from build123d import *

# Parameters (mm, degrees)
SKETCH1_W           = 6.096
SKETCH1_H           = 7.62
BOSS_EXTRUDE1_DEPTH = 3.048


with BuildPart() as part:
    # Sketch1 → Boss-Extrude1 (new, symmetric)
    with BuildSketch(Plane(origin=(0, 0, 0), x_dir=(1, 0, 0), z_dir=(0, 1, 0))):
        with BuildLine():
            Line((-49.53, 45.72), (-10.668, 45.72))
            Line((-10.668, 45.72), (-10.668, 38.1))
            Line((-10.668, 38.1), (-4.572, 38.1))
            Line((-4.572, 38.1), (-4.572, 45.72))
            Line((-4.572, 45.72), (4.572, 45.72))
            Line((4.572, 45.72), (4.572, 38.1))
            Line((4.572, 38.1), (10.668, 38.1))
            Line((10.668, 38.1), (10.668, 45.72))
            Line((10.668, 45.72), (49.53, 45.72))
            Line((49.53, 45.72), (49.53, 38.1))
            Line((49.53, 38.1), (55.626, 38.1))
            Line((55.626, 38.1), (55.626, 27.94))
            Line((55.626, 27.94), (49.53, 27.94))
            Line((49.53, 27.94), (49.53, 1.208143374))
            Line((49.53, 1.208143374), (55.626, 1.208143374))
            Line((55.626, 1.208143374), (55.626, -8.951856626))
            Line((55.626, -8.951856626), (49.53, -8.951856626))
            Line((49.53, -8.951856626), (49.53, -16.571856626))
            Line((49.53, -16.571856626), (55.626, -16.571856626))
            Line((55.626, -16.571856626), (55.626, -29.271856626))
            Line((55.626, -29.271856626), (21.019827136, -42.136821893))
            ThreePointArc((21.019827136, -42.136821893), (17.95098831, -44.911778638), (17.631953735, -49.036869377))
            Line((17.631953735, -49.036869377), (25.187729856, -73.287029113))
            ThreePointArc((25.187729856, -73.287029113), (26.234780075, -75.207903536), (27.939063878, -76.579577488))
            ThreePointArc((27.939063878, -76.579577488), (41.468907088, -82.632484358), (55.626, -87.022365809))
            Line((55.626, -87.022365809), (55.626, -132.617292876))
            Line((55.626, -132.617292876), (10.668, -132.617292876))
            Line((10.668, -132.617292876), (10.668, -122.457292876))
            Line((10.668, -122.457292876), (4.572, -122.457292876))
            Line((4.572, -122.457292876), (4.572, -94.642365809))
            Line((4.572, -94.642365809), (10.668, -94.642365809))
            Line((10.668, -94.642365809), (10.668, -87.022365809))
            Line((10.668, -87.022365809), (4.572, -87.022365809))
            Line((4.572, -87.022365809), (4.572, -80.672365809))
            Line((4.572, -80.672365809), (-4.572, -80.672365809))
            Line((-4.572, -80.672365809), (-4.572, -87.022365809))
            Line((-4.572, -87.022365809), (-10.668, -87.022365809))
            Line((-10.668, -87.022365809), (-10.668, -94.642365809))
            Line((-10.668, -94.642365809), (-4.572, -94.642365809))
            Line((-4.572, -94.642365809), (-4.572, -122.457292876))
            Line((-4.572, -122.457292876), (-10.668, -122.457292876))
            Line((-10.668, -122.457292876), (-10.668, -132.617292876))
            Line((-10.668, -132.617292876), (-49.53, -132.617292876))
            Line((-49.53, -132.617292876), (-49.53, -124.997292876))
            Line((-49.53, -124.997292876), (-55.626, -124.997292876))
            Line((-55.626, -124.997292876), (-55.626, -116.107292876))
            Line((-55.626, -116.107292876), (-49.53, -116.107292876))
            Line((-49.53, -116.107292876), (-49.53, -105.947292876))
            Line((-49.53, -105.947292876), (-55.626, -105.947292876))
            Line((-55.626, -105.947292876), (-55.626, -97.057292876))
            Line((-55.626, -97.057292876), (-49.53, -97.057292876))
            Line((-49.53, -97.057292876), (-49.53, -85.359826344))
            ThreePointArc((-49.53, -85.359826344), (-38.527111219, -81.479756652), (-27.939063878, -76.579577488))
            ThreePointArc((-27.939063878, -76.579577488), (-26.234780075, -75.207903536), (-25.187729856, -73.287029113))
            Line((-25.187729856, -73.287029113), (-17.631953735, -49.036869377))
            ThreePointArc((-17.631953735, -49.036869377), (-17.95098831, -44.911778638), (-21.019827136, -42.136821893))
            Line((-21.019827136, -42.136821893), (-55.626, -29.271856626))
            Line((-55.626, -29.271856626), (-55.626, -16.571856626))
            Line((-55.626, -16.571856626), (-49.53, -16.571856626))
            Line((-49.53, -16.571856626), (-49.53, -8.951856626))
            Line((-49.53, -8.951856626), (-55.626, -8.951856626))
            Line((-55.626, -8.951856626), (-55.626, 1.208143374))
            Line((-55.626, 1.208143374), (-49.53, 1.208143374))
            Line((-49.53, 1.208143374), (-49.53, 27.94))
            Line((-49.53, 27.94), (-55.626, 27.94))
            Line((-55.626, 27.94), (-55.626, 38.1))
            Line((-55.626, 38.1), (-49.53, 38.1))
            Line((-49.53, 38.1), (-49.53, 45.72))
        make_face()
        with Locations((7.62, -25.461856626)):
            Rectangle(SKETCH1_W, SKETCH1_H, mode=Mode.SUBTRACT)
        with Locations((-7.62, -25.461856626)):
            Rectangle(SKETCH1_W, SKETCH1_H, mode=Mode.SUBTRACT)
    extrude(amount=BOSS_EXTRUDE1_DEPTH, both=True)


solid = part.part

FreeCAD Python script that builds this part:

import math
import FreeCAD as App
import Part
import Sketcher
Q = App.Units.Quantity

doc = App.newDocument("Part")
body = doc.addObject("PartDesign::Body", "Body")

# Sketch on XZ plane
sketch1 = body.newObject("Sketcher::SketchObject", "Sketch")
sketch1.AttachmentSupport = (doc.getObject("XZ_Plane"), [""])
sketch1.MapMode = "FlatFace"
sketch1.addGeometry([
    Part.LineSegment(App.Vector(-10.7, -45.7, 0), App.Vector(-49.5, -45.7, 0)),  # 0
    Part.LineSegment(App.Vector(-49.5, -45.7, 0), App.Vector(-49.5, -38.1, 0)),  # 1
    Part.LineSegment(App.Vector(-49.5, -38.1, 0), App.Vector(-55.6, -38.1, 0)),  # 2
    Part.LineSegment(App.Vector(-55.6, -38.1, 0), App.Vector(-55.6, -27.9, 0)),  # 3
    Part.LineSegment(App.Vector(-55.6, -27.9, 0), App.Vector(-49.5, -27.9, 0)),  # 4
    Part.LineSegment(App.Vector(-49.5, -27.9, 0), App.Vector(-49.5, -1.2, 0)),  # 5
    Part.LineSegment(App.Vector(-49.5, -1.2, 0), App.Vector(-55.6, -1.2, 0)),  # 6
    Part.LineSegment(App.Vector(-55.6, -1.2, 0), App.Vector(-55.6, 9, 0)),  # 7
    Part.LineSegment(App.Vector(-55.6, 9, 0), App.Vector(-49.5, 9, 0)),  # 8
    Part.LineSegment(App.Vector(-49.5, 9, 0), App.Vector(-49.5, 16.6, 0)),  # 9
    Part.LineSegment(App.Vector(-49.5, 16.6, 0), App.Vector(-55.6, 16.6, 0)),  # 10
    Part.LineSegment(App.Vector(-55.6, 16.6, 0), App.Vector(-55.6, 29.3, 0)),  # 11
    Part.LineSegment(App.Vector(-55.6, 29.3, 0), App.Vector(-21, 42.1, 0)),  # 12
    Part.ArcOfCircle(Part.Circle(App.Vector(-23, 47.4, 0), App.Vector(0, 0, 1), 5.6), math.radians(-70), math.radians(17)),  # 13
    Part.LineSegment(App.Vector(-17.6, 49, 0), App.Vector(-25.2, 73.3, 0)),  # 14
    Part.ArcOfCircle(Part.Circle(App.Vector(-30.5, 71.6, 0), App.Vector(0, 0, 1), 5.6), math.radians(17), math.radians(62)),  # 15
    Part.ArcOfCircle(Part.Circle(App.Vector(-85.1, -33, 0), App.Vector(0, 0, 1), 123.6), math.radians(62.46), math.radians(73.28)),  # 16
    Part.LineSegment(App.Vector(-49.5, 85.4, 0), App.Vector(-49.5, 97.1, 0)),  # 17
    Part.LineSegment(App.Vector(-49.5, 97.1, 0), App.Vector(-55.6, 97.1, 0)),  # 18
    Part.LineSegment(App.Vector(-55.6, 97.1, 0), App.Vector(-55.6, 105.9, 0)),  # 19
    Part.LineSegment(App.Vector(-55.6, 105.9, 0), App.Vector(-49.5, 105.9, 0)),  # 20
    Part.LineSegment(App.Vector(-49.5, 105.9, 0), App.Vector(-49.5, 116.1, 0)),  # 21
    Part.LineSegment(App.Vector(-49.5, 116.1, 0), App.Vector(-55.6, 116.1, 0)),  # 22
    Part.LineSegment(App.Vector(-55.6, 116.1, 0), App.Vector(-55.6, 125, 0)),  # 23
    Part.LineSegment(App.Vector(-55.6, 125, 0), App.Vector(-49.5, 125, 0)),  # 24
    Part.LineSegment(App.Vector(-49.5, 125, 0), App.Vector(-49.5, 132.6, 0)),  # 25
    Part.LineSegment(App.Vector(-49.5, 132.6, 0), App.Vector(-10.7, 132.6, 0)),  # 26
    Part.LineSegment(App.Vector(-10.7, 132.6, 0), App.Vector(-10.7, 122.5, 0)),  # 27
    Part.LineSegment(App.Vector(-10.7, 122.5, 0), App.Vector(-4.6, 122.5, 0)),  # 28
    Part.LineSegment(App.Vector(-4.6, 122.5, 0), App.Vector(-4.6, 94.6, 0)),  # 29
    Part.LineSegment(App.Vector(-4.6, 94.6, 0), App.Vector(-10.7, 94.6, 0)),  # 30
    Part.LineSegment(App.Vector(-10.7, 94.6, 0), App.Vector(-10.7, 87, 0)),  # 31
    Part.LineSegment(App.Vector(-10.7, 87, 0), App.Vector(-4.6, 87, 0)),  # 32
    Part.LineSegment(App.Vector(-4.6, 87, 0), App.Vector(-4.6, 80.7, 0)),  # 33
    Part.LineSegment(App.Vector(-4.6, 80.7, 0), App.Vector(4.6, 80.7, 0)),  # 34
    Part.LineSegment(App.Vector(4.6, 80.7, 0), App.Vector(4.6, 87, 0)),  # 35
    Part.LineSegment(App.Vector(4.6, 87, 0), App.Vector(10.7, 87, 0)),  # 36
    Part.LineSegment(App.Vector(10.7, 87, 0), App.Vector(10.7, 94.6, 0)),  # 37
    Part.LineSegment(App.Vector(10.7, 94.6, 0), App.Vector(4.6, 94.6, 0)),  # 38
    Part.LineSegment(App.Vector(4.6, 94.6, 0), App.Vector(4.6, 122.5, 0)),  # 39
    Part.LineSegment(App.Vector(4.6, 122.5, 0), App.Vector(10.7, 122.5, 0)),  # 40
    Part.LineSegment(App.Vector(10.7, 122.5, 0), App.Vector(10.7, 132.6, 0)),  # 41
    Part.LineSegment(App.Vector(10.7, 132.6, 0), App.Vector(55.6, 132.6, 0)),  # 42
    Part.LineSegment(App.Vector(55.6, 132.6, 0), App.Vector(55.6, 87, 0)),  # 43
    Part.ArcOfCircle(Part.Circle(App.Vector(85.1, -33, 0), App.Vector(0, 0, 1), 123.6), math.radians(103.79), math.radians(117.54)),  # 44
    Part.ArcOfCircle(Part.Circle(App.Vector(30.5, 71.6, 0), App.Vector(0, 0, 1), 5.6), math.radians(118), math.radians(163)),  # 45
    Part.LineSegment(App.Vector(25.2, 73.3, 0), App.Vector(17.6, 49, 0)),  # 46
    Part.ArcOfCircle(Part.Circle(App.Vector(23, 47.4, 0), App.Vector(0, 0, 1), 5.6), math.radians(163), math.radians(250)),  # 47
    Part.LineSegment(App.Vector(21, 42.1, 0), App.Vector(55.6, 29.3, 0)),  # 48
    Part.LineSegment(App.Vector(55.6, 29.3, 0), App.Vector(55.6, 16.6, 0)),  # 49
    Part.LineSegment(App.Vector(55.6, 16.6, 0), App.Vector(49.5, 16.6, 0)),  # 50
    Part.LineSegment(App.Vector(49.5, 16.6, 0), App.Vector(49.5, 9, 0)),  # 51
    Part.LineSegment(App.Vector(49.5, 9, 0), App.Vector(55.6, 9, 0)),  # 52
    Part.LineSegment(App.Vector(55.6, 9, 0), App.Vector(55.6, -1.2, 0)),  # 53
    Part.LineSegment(App.Vector(55.6, -1.2, 0), App.Vector(49.5, -1.2, 0)),  # 54
    Part.LineSegment(App.Vector(49.5, -1.2, 0), App.Vector(49.5, -27.9, 0)),  # 55
    Part.LineSegment(App.Vector(49.5, -27.9, 0), App.Vector(55.6, -27.9, 0)),  # 56
    Part.LineSegment(App.Vector(55.6, -27.9, 0), App.Vector(55.6, -38.1, 0)),  # 57
    Part.LineSegment(App.Vector(55.6, -38.1, 0), App.Vector(49.5, -38.1, 0)),  # 58
    Part.LineSegment(App.Vector(49.5, -38.1, 0), App.Vector(49.5, -45.7, 0)),  # 59
    Part.LineSegment(App.Vector(49.5, -45.7, 0), App.Vector(10.7, -45.7, 0)),  # 60
    Part.LineSegment(App.Vector(10.7, -45.7, 0), App.Vector(10.7, -38.1, 0)),  # 61
    Part.LineSegment(App.Vector(10.7, -38.1, 0), App.Vector(4.6, -38.1, 0)),  # 62
    Part.LineSegment(App.Vector(4.6, -38.1, 0), App.Vector(4.6, -45.7, 0)),  # 63
    Part.LineSegment(App.Vector(4.6, -45.7, 0), App.Vector(-4.6, -45.7, 0)),  # 64
    Part.LineSegment(App.Vector(-4.6, -45.7, 0), App.Vector(-4.6, -38.1, 0)),  # 65
    Part.LineSegment(App.Vector(-4.6, -38.1, 0), App.Vector(-10.7, -38.1, 0)),  # 66
    Part.LineSegment(App.Vector(-10.7, -38.1, 0), App.Vector(-10.7, -45.7, 0)),  # 67
    Part.LineSegment(App.Vector(4.6, 29.3, 0), App.Vector(4.6, 21.7, 0)),  # 68
    Part.LineSegment(App.Vector(4.6, 21.7, 0), App.Vector(10.7, 21.7, 0)),  # 69
    Part.LineSegment(App.Vector(10.7, 21.7, 0), App.Vector(10.7, 29.3, 0)),  # 70
    Part.LineSegment(App.Vector(10.7, 29.3, 0), App.Vector(4.6, 29.3, 0)),  # 71
    Part.LineSegment(App.Vector(-10.7, 29.3, 0), App.Vector(-10.7, 21.7, 0)),  # 72
    Part.LineSegment(App.Vector(-10.7, 21.7, 0), App.Vector(-4.6, 21.7, 0)),  # 73
    Part.LineSegment(App.Vector(-4.6, 21.7, 0), App.Vector(-4.6, 29.3, 0)),  # 74
    Part.LineSegment(App.Vector(-4.6, 29.3, 0), App.Vector(-10.7, 29.3, 0)),  # 75
], False)
sketch1.addConstraint([
    Sketcher.Constraint("Coincident", 0, 2, 1, 1),
    Sketcher.Constraint("Coincident", 1, 2, 2, 1),
    Sketcher.Constraint("Coincident", 2, 2, 3, 1),
    Sketcher.Constraint("Coincident", 3, 2, 4, 1),
    Sketcher.Constraint("Coincident", 4, 2, 5, 1),
    Sketcher.Constraint("Coincident", 5, 2, 6, 1),
    Sketcher.Constraint("Coincident", 6, 2, 7, 1),
    Sketcher.Constraint("Coincident", 7, 2, 8, 1),
    Sketcher.Constraint("Coincident", 8, 2, 9, 1),
    Sketcher.Constraint("Coincident", 9, 2, 10, 1),
    Sketcher.Constraint("Coincident", 10, 2, 11, 1),
    Sketcher.Constraint("Coincident", 11, 2, 12, 1),
    Sketcher.Constraint("Tangent", 12, 2, 13, 1),
    Sketcher.Constraint("Tangent", 13, 2, 14, 1),
    Sketcher.Constraint("Tangent", 14, 2, 15, 1),
    Sketcher.Constraint("Tangent", 15, 2, 16, 1),
    Sketcher.Constraint("Coincident", 16, 2, 17, 1),
    Sketcher.Constraint("Coincident", 17, 2, 18, 1),
    Sketcher.Constraint("Coincident", 18, 2, 19, 1),
    Sketcher.Constraint("Coincident", 19, 2, 20, 1),
    Sketcher.Constraint("Coincident", 20, 2, 21, 1),
    Sketcher.Constraint("Coincident", 21, 2, 22, 1),
    Sketcher.Constraint("Coincident", 22, 2, 23, 1),
    Sketcher.Constraint("Coincident", 23, 2, 24, 1),
    Sketcher.Constraint("Coincident", 24, 2, 25, 1),
    Sketcher.Constraint("Coincident", 25, 2, 26, 1),
    Sketcher.Constraint("Coincident", 26, 2, 27, 1),
    Sketcher.Constraint("Coincident", 27, 2, 28, 1),
    Sketcher.Constraint("Coincident", 28, 2, 29, 1),
    Sketcher.Constraint("Coincident", 29, 2, 30, 1),
    Sketcher.Constraint("Coincident", 30, 2, 31, 1),
    Sketcher.Constraint("Coincident", 31, 2, 32, 1),
    Sketcher.Constraint("Coincident", 32, 2, 33, 1),
    Sketcher.Constraint("Coincident", 33, 2, 34, 1),
    Sketcher.Constraint("Coincident", 34, 2, 35, 1),
    Sketcher.Constraint("Coincident", 35, 2, 36, 1),
    Sketcher.Constraint("Coincident", 36, 2, 37, 1),
    Sketcher.Constraint("Coincident", 37, 2, 38, 1),
    Sketcher.Constraint("Coincident", 38, 2, 39, 1),
    Sketcher.Constraint("Coincident", 39, 2, 40, 1),
    Sketcher.Constraint("Coincident", 40, 2, 41, 1),
    Sketcher.Constraint("Coincident", 41, 2, 42, 1),
    Sketcher.Constraint("Coincident", 42, 2, 43, 1),
    Sketcher.Constraint("Coincident", 43, 2, 44, 1),
    Sketcher.Constraint("Tangent", 44, 2, 45, 1),
    Sketcher.Constraint("Tangent", 45, 2, 46, 1),
    Sketcher.Constraint("Tangent", 46, 2, 47, 1),
    Sketcher.Constraint("Tangent", 47, 2, 48, 1),
    Sketcher.Constraint("Coincident", 48, 2, 49, 1),
    Sketcher.Constraint("Coincident", 49, 2, 50, 1),
    Sketcher.Constraint("Coincident", 50, 2, 51, 1),
    Sketcher.Constraint("Coincident", 51, 2, 52, 1),
    Sketcher.Constraint("Coincident", 52, 2, 53, 1),
    Sketcher.Constraint("Coincident", 53, 2, 54, 1),
    Sketcher.Constraint("Coincident", 54, 2, 55, 1),
    Sketcher.Constraint("Coincident", 55, 2, 56, 1),
    Sketcher.Constraint("Coincident", 56, 2, 57, 1),
    Sketcher.Constraint("Coincident", 57, 2, 58, 1),
    Sketcher.Constraint("Coincident", 58, 2, 59, 1),
    Sketcher.Constraint("Coincident", 59, 2, 60, 1),
    Sketcher.Constraint("Coincident", 60, 2, 61, 1),
    Sketcher.Constraint("Coincident", 61, 2, 62, 1),
    Sketcher.Constraint("Coincident", 62, 2, 63, 1),
    Sketcher.Constraint("Coincident", 63, 2, 64, 1),
    Sketcher.Constraint("Coincident", 64, 2, 65, 1),
    Sketcher.Constraint("Coincident", 65, 2, 66, 1),
    Sketcher.Constraint("Coincident", 66, 2, 67, 1),
    Sketcher.Constraint("Coincident", 67, 2, 0, 1),
    Sketcher.Constraint("Coincident", 68, 2, 69, 1),
    Sketcher.Constraint("Coincident", 69, 2, 70, 1),
    Sketcher.Constraint("Coincident", 70, 2, 71, 1),
    Sketcher.Constraint("Coincident", 71, 2, 68, 1),
    Sketcher.Constraint("Coincident", 72, 2, 73, 1),
    Sketcher.Constraint("Coincident", 73, 2, 74, 1),
    Sketcher.Constraint("Coincident", 74, 2, 75, 1),
    Sketcher.Constraint("Coincident", 75, 2, 72, 1),
    Sketcher.Constraint("Horizontal", 0),
    Sketcher.Constraint("Vertical", 1),
    Sketcher.Constraint("Horizontal", 2),
    Sketcher.Constraint("Vertical", 3),
    Sketcher.Constraint("Horizontal", 4),
    Sketcher.Constraint("Vertical", 5),
    Sketcher.Constraint("Horizontal", 6),
    Sketcher.Constraint("Vertical", 7),
    Sketcher.Constraint("Horizontal", 8),
    Sketcher.Constraint("Vertical", 9),
    Sketcher.Constraint("Horizontal", 10),
    Sketcher.Constraint("Vertical", 11),
    Sketcher.Constraint("Vertical", 17),
    Sketcher.Constraint("Horizontal", 18),
    Sketcher.Constraint("Vertical", 19),
    Sketcher.Constraint("Horizontal", 20),
    Sketcher.Constraint("Vertical", 21),
    Sketcher.Constraint("Horizontal", 22),
    Sketcher.Constraint("Vertical", 23),
    Sketcher.Constraint("Horizontal", 24),
    Sketcher.Constraint("Vertical", 25),
    Sketcher.Constraint("Horizontal", 26),
    Sketcher.Constraint("Vertical", 27),
    Sketcher.Constraint("Horizontal", 28),
    Sketcher.Constraint("Vertical", 29),
    Sketcher.Constraint("Horizontal", 30),
    Sketcher.Constraint("Vertical", 31),
    Sketcher.Constraint("Horizontal", 32),
    Sketcher.Constraint("Vertical", 33),
    Sketcher.Constraint("Horizontal", 34),
    Sketcher.Constraint("Vertical", 35),
    Sketcher.Constraint("Horizontal", 36),
    Sketcher.Constraint("Vertical", 37),
    Sketcher.Constraint("Horizontal", 38),
    Sketcher.Constraint("Vertical", 39),
    Sketcher.Constraint("Horizontal", 40),
    Sketcher.Constraint("Vertical", 41),
    Sketcher.Constraint("Horizontal", 42),
    Sketcher.Constraint("Vertical", 43),
    Sketcher.Constraint("Vertical", 49),
    Sketcher.Constraint("Horizontal", 50),
    Sketcher.Constraint("Vertical", 51),
    Sketcher.Constraint("Horizontal", 52),
    Sketcher.Constraint("Vertical", 53),
    Sketcher.Constraint("Horizontal", 54),
    Sketcher.Constraint("Vertical", 55),
    Sketcher.Constraint("Horizontal", 56),
    Sketcher.Constraint("Vertical", 57),
    Sketcher.Constraint("Horizontal", 58),
    Sketcher.Constraint("Vertical", 59),
    Sketcher.Constraint("Horizontal", 60),
    Sketcher.Constraint("Vertical", 61),
    Sketcher.Constraint("Horizontal", 62),
    Sketcher.Constraint("Vertical", 63),
    Sketcher.Constraint("Horizontal", 64),
    Sketcher.Constraint("Vertical", 65),
    Sketcher.Constraint("Horizontal", 66),
    Sketcher.Constraint("Vertical", 67),
    Sketcher.Constraint("Vertical", 68),
    Sketcher.Constraint("Horizontal", 69),
    Sketcher.Constraint("Vertical", 70),
    Sketcher.Constraint("Horizontal", 71),
    Sketcher.Constraint("Vertical", 72),
    Sketcher.Constraint("Horizontal", 73),
    Sketcher.Constraint("Vertical", 74),
    Sketcher.Constraint("Horizontal", 75),
    Sketcher.Constraint("Equal", 13, 15),
    Sketcher.Constraint("Equal", 16, 44),
    Sketcher.Constraint("Equal", 15, 45),
    Sketcher.Constraint("Equal", 45, 47),
    Sketcher.Constraint("Symmetric", 16, 3, 44, 3, -2),
    Sketcher.Constraint("Symmetric", 13, 3, 47, 3, -2),
    Sketcher.Constraint("Symmetric", 32, 2, 35, 2, -2),
    Sketcher.Constraint("Symmetric", 30, 2, 37, 2, -2),
    Sketcher.Constraint("Symmetric", 28, 2, 39, 2, -2),
    Sketcher.Constraint("Symmetric", 26, 2, 41, 2, -2),
    Sketcher.Constraint("Symmetric", 11, 2, 48, 2, -2),
    Sketcher.Constraint("Symmetric", 9, 2, 50, 2, -2),
    Sketcher.Constraint("Symmetric", 7, 2, 52, 2, -2),
    Sketcher.Constraint("Symmetric", 5, 2, 54, 2, -2),
    Sketcher.Constraint("Symmetric", 3, 2, 56, 2, -2),
    Sketcher.Constraint("Symmetric", 1, 2, 58, 2, -2),
    Sketcher.Constraint("Symmetric", 62, 2, 65, 2, -2),
    Sketcher.Constraint("Symmetric", 60, 2, 67, 2, -2),
    Sketcher.Constraint("Symmetric", 69, 2, 72, 2, -2),
    Sketcher.Constraint("Symmetric", 71, 2, 74, 2, -2),
    Sketcher.Constraint("Horizontal", 15, 3, 45, 3),
    Sketcher.Constraint("Horizontal", 36, 2, 43, 2),
    Sketcher.Constraint("Horizontal", 58, 2, 61, 2),
    Sketcher.Constraint("Horizontal", 60, 2, 63, 2),
    Sketcher.Constraint("Horizontal", 48, 2, 70, 2),
    Sketcher.Constraint("Vertical", 1, 2, 4, 2),
    Sketcher.Constraint("Vertical", 3, 2, 6, 2),
    Sketcher.Constraint("Vertical", 5, 2, 8, 2),
    Sketcher.Constraint("Vertical", 7, 2, 10, 2),
    Sketcher.Constraint("Vertical", 9, 2, 16, 2),
    Sketcher.Constraint("Vertical", 11, 2, 18, 2),
    Sketcher.Constraint("Vertical", 17, 2, 20, 2),
    Sketcher.Constraint("Vertical", 19, 2, 22, 2),
    Sketcher.Constraint("Vertical", 21, 2, 24, 2),
    Sketcher.Constraint("Vertical", 27, 2, 30, 2),
    Sketcher.Constraint("Vertical", 29, 2, 32, 2),
    Sketcher.Constraint("Vertical", 43, 2, 48, 2),
    Sketcher.Constraint("Vertical", 41, 2, 60, 2),
    Sketcher.Constraint("Vertical", 39, 2, 62, 2),
    Sketcher.Constraint("Vertical", 63, 2, 68, 2),
    Sketcher.Constraint("Vertical", 61, 2, 69, 2),
    Sketcher.Constraint("Equal", 24, 28),
    Sketcher.Constraint("Equal", 3, 7),
    Sketcher.Constraint("Equal", 1, 9),
    Sketcher.Constraint("Equal", 7, 21),
    Sketcher.Constraint("Equal", 19, 23),
    Sketcher.Constraint("Equal", 9, 25),
    Sketcher.Constraint("Equal", 21, 27),
    Sketcher.Constraint("Equal", 25, 31),
    Sketcher.Constraint("Equal", 67, 68),
    Sketcher.Constraint("Radius", 13, Q("0.22 in")),
    Sketcher.Constraint("Distance", 14, Q("1 in")),
    Sketcher.Constraint("DistanceY", 1, 1, 1, 2, Q("0.3 in")),
    Sketcher.Constraint("DistanceY", 3, 1, 3, 2, Q("0.4 in")),
    Sketcher.Constraint("DistanceY", 11, 1, 11, 2, Q("0.5 in")),
    Sketcher.Constraint("DistanceX", 0, 2, 0, 1, Q("1.53 in")),
    Sketcher.Constraint("DistanceX", 2, 2, 2, 1, Q("0.24 in")),
    Sketcher.Constraint("DistanceX", 34, 1, 34, 2, Q("0.36 in")),
    Sketcher.Constraint("DistanceY", 19, 1, 19, 2, Q("0.35 in")),
    Sketcher.Constraint("DistanceY", 33, 2, 33, 1, Q("0.25 in")),
    Sketcher.Constraint("DistanceY", 16, 3, -1, 1, Q("1.3 in")),
    Sketcher.Constraint("DistanceY", 0, 2, -1, 1, Q("1.8 in")),
    Sketcher.Constraint("DistanceX", 16, 3, -1, 1, Q("3.35 in")),
    Sketcher.Constraint("Radius", 16, 123.605408),
    Sketcher.Constraint("DistanceY", -1, 1, 13, 3, 47.374599),
    Sketcher.Constraint("Distance", 12, 36.92011),
    Sketcher.Constraint("DistanceY", 5, 1, 5, 2, 26.731857),
    Sketcher.Constraint("DistanceY", 17, 1, 17, 2, 11.697467),
])
pad1 = body.newObject("PartDesign::Pad", "Pad")
pad1.Profile = sketch1
pad1.Length = Q("0.24 in")
pad1.Midplane = True

doc.recompute()
